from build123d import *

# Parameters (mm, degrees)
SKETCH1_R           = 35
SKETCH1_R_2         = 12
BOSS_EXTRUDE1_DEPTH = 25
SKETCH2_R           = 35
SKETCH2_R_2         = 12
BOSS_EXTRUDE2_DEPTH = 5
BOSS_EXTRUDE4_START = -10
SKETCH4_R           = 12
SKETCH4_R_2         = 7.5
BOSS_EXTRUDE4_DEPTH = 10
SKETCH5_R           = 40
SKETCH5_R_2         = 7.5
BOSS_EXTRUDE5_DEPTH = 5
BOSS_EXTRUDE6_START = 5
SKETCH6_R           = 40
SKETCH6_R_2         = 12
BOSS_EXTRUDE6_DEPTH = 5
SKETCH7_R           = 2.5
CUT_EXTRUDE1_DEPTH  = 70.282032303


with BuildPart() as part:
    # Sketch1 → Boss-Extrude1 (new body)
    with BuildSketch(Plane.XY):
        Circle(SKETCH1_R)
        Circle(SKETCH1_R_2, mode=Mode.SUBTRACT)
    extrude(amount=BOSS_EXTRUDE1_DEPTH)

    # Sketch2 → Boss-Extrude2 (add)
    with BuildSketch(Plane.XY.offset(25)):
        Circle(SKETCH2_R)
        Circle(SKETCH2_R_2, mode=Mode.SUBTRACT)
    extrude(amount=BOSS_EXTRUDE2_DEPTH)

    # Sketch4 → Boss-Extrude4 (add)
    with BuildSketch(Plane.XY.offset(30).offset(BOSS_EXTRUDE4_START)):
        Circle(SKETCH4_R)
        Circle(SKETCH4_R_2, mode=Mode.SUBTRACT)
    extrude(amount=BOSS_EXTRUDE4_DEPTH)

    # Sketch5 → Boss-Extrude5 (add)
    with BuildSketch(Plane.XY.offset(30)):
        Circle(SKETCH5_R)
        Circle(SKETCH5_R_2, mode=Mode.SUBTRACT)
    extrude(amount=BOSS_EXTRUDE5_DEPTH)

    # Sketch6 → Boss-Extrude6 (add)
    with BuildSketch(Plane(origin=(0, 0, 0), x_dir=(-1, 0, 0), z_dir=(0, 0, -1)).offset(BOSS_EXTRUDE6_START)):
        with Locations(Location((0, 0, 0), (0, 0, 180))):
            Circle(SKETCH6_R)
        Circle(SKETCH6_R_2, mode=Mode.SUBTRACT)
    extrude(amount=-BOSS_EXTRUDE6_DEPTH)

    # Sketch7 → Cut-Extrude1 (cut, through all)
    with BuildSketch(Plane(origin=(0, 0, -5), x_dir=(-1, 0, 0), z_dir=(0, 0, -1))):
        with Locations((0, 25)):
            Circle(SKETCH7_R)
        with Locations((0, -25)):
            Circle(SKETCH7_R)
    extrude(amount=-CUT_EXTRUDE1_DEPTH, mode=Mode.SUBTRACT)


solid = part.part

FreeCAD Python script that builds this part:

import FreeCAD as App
import Part
import Sketcher

V = App.Vector
Q = App.Units.Quantity

doc = App.newDocument("Part")
params = doc.addObject("Spreadsheet::Sheet", "Params")
for row, (alias, value) in enumerate([
    ("sketch1_diameter", "70 mm"),
    ("sketch1_diameter2", "24 mm"),
    ("pad1_length", "25 mm"),
    ("sketch2_diameter", "70 mm"),
    ("sketch2_diameter2", "24 mm"),
    ("pad2_length", "5 mm"),
    ("sketch3_diameter", "24 mm"),
    ("sketch3_diameter2", "15 mm"),
    ("pad3_length", "10 mm"),
    ("sketch4_diameter", "80 mm"),
    ("sketch4_diameter2", "15 mm"),
    ("pad4_length", "5 mm"),
    ("sketch5_diameter", "80 mm"),
    ("sketch5_diameter2", "24 mm"),
    ("pad5_length", "5 mm"),
    ("sketch6_diameter", "5 mm"),
], start=1):
    params.set(f"A{row}", alias)
    params.set(f"B{row}", "=" + value)
    params.setAlias(f"B{row}", alias)

body = doc.addObject("PartDesign::Body", "Body")

# Sketch on XY plane
sketch1 = doc.addObject("Sketcher::SketchObject", "Sketch")
body.addObject(sketch1)
sketch1.AttachmentSupport = (doc.XY_Plane, [""])
sketch1.MapMode = "FlatFace"
sketch1.addGeometry([
    Part.Circle(V(0, 0, 0), V(0, 0, 1), 35),
    Part.Circle(V(0, 0, 0), V(0, 0, 1), 12),
], False)
sketch1.addConstraint([
    Sketcher.Constraint("Coincident", 0, 3, -1, 1),
    Sketcher.Constraint("Coincident", 1, 3, -1, 1),
    Sketcher.Constraint("Diameter", 0, Q("70 mm")),
    Sketcher.Constraint("Diameter", 1, Q("24 mm")),
])
sketch1.setExpression("Constraints[2]", "Params.sketch1_diameter")
sketch1.setExpression("Constraints[3]", "Params.sketch1_diameter2")
pad1 = doc.addObject("PartDesign::Pad", "Pad")
body.addObject(pad1)
pad1.Profile = sketch1
pad1.setExpression("Length", "Params.pad1_length")

# Sketch on XY plane
sketch2 = doc.addObject("Sketcher::SketchObject", "Sketch001")
body.addObject(sketch2)
sketch2.AttachmentSupport = (doc.XY_Plane, [""])
sketch2.MapMode = "FlatFace"
sketch2.AttachmentOffset = App.Placement(V(0, 0, 25), App.Rotation())
sketch2.addGeometry([
    Part.Circle(V(0, 0, 0), V(0, 0, 1), 35),
    Part.Circle(V(0, 0, 0), V(0, 0, 1), 12),
], False)
sketch2.addConstraint([
    Sketcher.Constraint("Coincident", 0, 3, -1, 1),
    Sketcher.Constraint("Coincident", 1, 3, -1, 1),
    Sketcher.Constraint("Diameter", 0, Q("70 mm")),
    Sketcher.Constraint("Diameter", 1, Q("24 mm")),
])
sketch2.setExpression("Constraints[2]", "Params.sketch2_diameter")
sketch2.setExpression("Constraints[3]", "Params.sketch2_diameter2")
pad2 = doc.addObject("PartDesign::Pad", "Pad001")
body.addObject(pad2)
pad2.Profile = sketch2
pad2.setExpression("Length", "Params.pad2_length")

# Sketch on XY plane
sketch3 = doc.addObject("Sketcher::SketchObject", "Sketch002")
body.addObject(sketch3)
sketch3.AttachmentSupport = (doc.XY_Plane, [""])
sketch3.MapMode = "FlatFace"
sketch3.AttachmentOffset = App.Placement(V(0, 0, 20), App.Rotation())
sketch3.addGeometry([
    Part.Circle(V(0, 0, 0), V(0, 0, 1), 12),
    Part.Circle(V(0, 0, 0), V(0, 0, 1), 8),
], False)
sketch3.addConstraint([
    Sketcher.Constraint("Coincident", 0, 3, -1, 1),
    Sketcher.Constraint("Coincident", 1, 3, -1, 1),
    Sketcher.Constraint("Diameter", 0, Q("24 mm")),
    Sketcher.Constraint("Diameter", 1, Q("15 mm")),
])
sketch3.setExpression("Constraints[2]", "Params.sketch3_diameter")
sketch3.setExpression("Constraints[3]", "Params.sketch3_diameter2")
pad3 = doc.addObject("PartDesign::Pad", "Pad002")
body.addObject(pad3)
pad3.Profile = sketch3
pad3.setExpression("Length", "Params.pad3_length")

# Sketch on XY plane
sketch4 = doc.addObject("Sketcher::SketchObject", "Sketch003")
body.addObject(sketch4)
sketch4.AttachmentSupport = (doc.XY_Plane, [""])
sketch4.MapMode = "FlatFace"
sketch4.AttachmentOffset = App.Placement(V(0, 0, 30), App.Rotation())
sketch4.addGeometry([
    Part.Circle(V(0, 0, 0), V(0, 0, 1), 40),
    Part.Circle(V(0, 0, 0), V(0, 0, 1), 8),
], False)
sketch4.addConstraint([
    Sketcher.Constraint("Coincident", 0, 3, -1, 1),
    Sketcher.Constraint("Coincident", 1, 3, -1, 1),
    Sketcher.Constraint("Diameter", 0, Q("80 mm")),
    Sketcher.Constraint("Diameter", 1, Q("15 mm")),
])
sketch4.setExpression("Constraints[2]", "Params.sketch4_diameter")
sketch4.setExpression("Constraints[3]", "Params.sketch4_diameter2")
pad4 = doc.addObject("PartDesign::Pad", "Pad003")
body.addObject(pad4)
pad4.Profile = sketch4
pad4.setExpression("Length", "Params.pad4_length")

# Sketch on XY plane
sketch5 = doc.addObject("Sketcher::SketchObject", "Sketch004")
body.addObject(sketch5)
sketch5.AttachmentSupport = (doc.XY_Plane, [""])
sketch5.MapMode = "FlatFace"
sketch5.AttachmentOffset = App.Placement(V(0, 0, -5), App.Rotation())
sketch5.addGeometry([
    Part.Circle(V(0, 0, 0), V(0, 0, 1), 40),
    Part.Circle(V(0, 0, 0), V(0, 0, 1), 12),
], False)
sketch5.addConstraint([
    Sketcher.Constraint("Coincident", 0, 3, -1, 1),
    Sketcher.Constraint("Coincident", 1, 3, -1, 1),
    Sketcher.Constraint("Diameter", 0, Q("80 mm")),
    Sketcher.Constraint("Diameter", 1, Q("24 mm")),
])
sketch5.setExpression("Constraints[2]", "Params.sketch5_diameter")
sketch5.setExpression("Constraints[3]", "Params.sketch5_diameter2")
pad5 = doc.addObject("PartDesign::Pad", "Pad004")
body.addObject(pad5)
pad5.Profile = sketch5
pad5.setExpression("Length", "Params.pad5_length")

# Sketch on XY plane
sketch6 = doc.addObject("Sketcher::SketchObject", "Sketch005")
body.addObject(sketch6)
sketch6.AttachmentSupport = (doc.XY_Plane, [""])
sketch6.MapMode = "FlatFace"
sketch6.AttachmentOffset = App.Placement(V(0, 0, -5), App.Rotation())
sketch6.addGeometry([
    Part.Circle(V(0, 25, 0), V(0, 0, 1), 2.5),
    Part.Circle(V(0, -25, 0), V(0, 0, 1), 2.5),
], False)
sketch6.addConstraint([
    Sketcher.Constraint("Equal", 0, 1),
    Sketcher.Constraint("Symmetric", 0, 3, 1, 3, -1, 1),
    Sketcher.Constraint("PointOnObject", 0, 3, -2),
    Sketcher.Constraint("Diameter", 0, Q("5 mm")),
    Sketcher.Constraint("DistanceY", -1, 1, 0, 3, Q("25 mm")),
])
sketch6.setExpression("Constraints[3]", "Params.sketch6_diameter")
pocket1 = doc.addObject("PartDesign::Pocket", "Pocket")
body.addObject(pocket1)
pocket1.Profile = sketch6
pocket1.Type = "ThroughAll"
pocket1.Reversed = True

doc.recompute()
